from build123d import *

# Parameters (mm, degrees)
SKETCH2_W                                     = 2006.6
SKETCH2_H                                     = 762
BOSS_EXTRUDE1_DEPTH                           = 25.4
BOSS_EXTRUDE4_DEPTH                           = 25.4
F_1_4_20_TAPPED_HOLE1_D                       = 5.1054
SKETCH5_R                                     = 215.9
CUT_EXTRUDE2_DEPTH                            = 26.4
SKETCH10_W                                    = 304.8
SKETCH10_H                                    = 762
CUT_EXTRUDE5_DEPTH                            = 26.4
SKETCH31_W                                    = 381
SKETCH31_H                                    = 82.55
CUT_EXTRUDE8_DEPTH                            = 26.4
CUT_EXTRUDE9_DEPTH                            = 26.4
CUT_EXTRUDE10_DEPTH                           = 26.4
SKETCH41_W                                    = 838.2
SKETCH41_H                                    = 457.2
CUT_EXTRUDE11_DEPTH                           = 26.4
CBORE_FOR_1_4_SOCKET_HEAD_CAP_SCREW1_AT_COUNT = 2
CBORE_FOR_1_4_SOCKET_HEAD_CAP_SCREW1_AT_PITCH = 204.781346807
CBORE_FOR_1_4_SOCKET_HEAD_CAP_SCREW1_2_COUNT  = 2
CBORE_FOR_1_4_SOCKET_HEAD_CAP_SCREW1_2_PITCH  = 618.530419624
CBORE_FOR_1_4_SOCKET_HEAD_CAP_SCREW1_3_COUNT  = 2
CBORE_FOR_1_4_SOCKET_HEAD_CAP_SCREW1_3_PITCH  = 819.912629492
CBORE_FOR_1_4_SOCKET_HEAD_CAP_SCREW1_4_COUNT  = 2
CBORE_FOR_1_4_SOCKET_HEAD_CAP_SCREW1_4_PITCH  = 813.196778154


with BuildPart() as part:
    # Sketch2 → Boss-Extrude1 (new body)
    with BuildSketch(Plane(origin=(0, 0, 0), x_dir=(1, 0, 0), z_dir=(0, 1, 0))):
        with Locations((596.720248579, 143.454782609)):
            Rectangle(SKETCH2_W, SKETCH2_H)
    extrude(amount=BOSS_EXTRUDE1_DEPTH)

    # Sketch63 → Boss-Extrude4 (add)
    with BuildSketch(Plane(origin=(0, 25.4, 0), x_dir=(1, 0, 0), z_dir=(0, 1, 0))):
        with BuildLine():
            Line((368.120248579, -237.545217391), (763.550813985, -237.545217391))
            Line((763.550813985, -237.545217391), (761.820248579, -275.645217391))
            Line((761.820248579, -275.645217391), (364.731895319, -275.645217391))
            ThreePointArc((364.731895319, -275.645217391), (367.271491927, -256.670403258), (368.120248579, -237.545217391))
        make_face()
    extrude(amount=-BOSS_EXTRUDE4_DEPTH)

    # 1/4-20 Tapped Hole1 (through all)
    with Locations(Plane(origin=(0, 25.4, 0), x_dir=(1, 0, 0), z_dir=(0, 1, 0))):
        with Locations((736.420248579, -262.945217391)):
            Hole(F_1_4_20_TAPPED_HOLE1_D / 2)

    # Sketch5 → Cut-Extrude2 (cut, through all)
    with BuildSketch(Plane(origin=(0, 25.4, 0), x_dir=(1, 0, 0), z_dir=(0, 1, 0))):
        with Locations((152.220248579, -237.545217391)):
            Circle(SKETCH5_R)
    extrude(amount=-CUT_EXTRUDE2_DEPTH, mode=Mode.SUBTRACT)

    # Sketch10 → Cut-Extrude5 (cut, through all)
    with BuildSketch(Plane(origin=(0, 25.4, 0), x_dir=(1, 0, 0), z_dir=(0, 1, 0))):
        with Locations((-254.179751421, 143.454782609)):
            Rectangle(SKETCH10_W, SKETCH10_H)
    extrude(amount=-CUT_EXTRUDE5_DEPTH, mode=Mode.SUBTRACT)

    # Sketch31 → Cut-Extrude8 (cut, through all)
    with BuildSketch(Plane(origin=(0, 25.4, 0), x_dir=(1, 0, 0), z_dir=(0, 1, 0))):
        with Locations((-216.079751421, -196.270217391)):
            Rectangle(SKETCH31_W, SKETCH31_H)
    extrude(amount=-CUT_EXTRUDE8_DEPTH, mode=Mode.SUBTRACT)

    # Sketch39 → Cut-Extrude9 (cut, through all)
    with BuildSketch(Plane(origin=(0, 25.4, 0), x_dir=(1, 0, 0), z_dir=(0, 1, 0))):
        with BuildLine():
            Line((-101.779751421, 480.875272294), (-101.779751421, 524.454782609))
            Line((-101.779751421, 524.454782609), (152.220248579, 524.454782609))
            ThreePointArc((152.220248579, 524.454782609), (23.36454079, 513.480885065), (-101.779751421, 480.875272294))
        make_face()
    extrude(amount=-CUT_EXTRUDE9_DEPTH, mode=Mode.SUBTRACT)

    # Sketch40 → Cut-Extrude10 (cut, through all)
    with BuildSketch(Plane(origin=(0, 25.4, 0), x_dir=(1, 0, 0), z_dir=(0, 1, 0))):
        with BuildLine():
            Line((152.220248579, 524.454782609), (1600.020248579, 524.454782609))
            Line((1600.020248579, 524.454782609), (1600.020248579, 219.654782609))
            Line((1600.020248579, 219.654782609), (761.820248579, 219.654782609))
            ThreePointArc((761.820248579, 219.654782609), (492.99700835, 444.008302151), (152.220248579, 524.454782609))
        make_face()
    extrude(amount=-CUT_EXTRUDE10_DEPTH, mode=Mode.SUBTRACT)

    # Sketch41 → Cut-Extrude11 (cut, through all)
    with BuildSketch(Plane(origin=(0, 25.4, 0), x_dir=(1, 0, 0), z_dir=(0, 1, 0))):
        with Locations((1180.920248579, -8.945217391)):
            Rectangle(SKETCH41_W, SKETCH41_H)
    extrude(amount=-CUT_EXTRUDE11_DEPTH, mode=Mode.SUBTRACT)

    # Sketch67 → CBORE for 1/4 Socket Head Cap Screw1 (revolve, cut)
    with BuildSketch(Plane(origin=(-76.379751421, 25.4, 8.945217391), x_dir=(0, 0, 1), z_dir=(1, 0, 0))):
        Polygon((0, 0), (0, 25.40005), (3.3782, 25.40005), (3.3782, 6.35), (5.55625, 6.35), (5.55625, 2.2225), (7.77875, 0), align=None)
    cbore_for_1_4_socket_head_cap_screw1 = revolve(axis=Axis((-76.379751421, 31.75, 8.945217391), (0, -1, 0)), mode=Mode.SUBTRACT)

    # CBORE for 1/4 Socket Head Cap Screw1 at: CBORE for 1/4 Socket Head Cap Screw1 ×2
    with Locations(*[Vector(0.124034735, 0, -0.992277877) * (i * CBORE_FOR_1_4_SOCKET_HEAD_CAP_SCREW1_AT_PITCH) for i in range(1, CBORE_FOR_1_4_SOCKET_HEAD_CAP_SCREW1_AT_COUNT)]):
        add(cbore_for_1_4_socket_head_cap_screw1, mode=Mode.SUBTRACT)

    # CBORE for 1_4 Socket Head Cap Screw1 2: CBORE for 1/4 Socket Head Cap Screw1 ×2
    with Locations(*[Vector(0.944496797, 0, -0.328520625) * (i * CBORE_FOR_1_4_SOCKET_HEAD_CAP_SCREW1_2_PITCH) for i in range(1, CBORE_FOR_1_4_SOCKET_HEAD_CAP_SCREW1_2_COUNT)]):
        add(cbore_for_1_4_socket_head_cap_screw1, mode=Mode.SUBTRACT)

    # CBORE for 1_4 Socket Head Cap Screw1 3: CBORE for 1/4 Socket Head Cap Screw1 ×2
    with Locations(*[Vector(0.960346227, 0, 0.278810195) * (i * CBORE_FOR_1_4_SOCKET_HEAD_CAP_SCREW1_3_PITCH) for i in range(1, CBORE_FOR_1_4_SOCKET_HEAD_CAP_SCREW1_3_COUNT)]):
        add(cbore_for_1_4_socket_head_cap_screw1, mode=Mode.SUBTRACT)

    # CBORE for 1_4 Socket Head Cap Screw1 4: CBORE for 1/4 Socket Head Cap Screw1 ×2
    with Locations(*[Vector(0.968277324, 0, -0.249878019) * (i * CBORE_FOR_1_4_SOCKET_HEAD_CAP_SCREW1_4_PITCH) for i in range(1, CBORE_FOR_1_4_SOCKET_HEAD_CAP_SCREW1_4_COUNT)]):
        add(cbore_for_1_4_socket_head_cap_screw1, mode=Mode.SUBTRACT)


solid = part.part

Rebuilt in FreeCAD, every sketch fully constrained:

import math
import FreeCAD as App
import Part
import Sketcher

V = App.Vector
Q = App.Units.Quantity

doc = App.newDocument("Part")
params = doc.addObject("Spreadsheet::Sheet", "Params")
for row, (alias, value) in enumerate([
    ("sketch1_width", "79 in"),
    ("sketch1_height", "30 in"),
    ("pad1_length", "1 in"),
    ("sketch2_radius", "8.5 in"),
    ("pad2_length", "1 in"),
    ("sketch3_diameter", "0.201 in"),
    ("hole_diameter", "0.201 in"),
    ("sketch4_diameter", "17 in"),
    ("sketch5_width", "12 in"),
    ("sketch5_height", "30 in"),
    ("sketch6_width", "15 in"),
    ("sketch6_height", "3.25 in"),
    ("sketch7_radius", "30 in"),
    ("sketch7_width", "10 in"),
    ("sketch8_radius", "30 in"),
    ("sketch8_width", "57 in"),
    ("sketch8_width2", "33 in"),
    ("sketch9_width", "33 in"),
    ("sketch9_height", "18 in"),
    ("sketch10_height", "0.133 in"),
    ("groove_angle", "360 deg"),
    ("linearpattern_pitch", "204.781347 mm"),
    ("linearpattern2_pitch", "618.53042 mm"),
    ("linearpattern3_pitch", "819.91263 mm"),
    ("linearpattern4_pitch", "813.196778 mm"),
], start=1):
    params.set(f"A{row}", alias)
    params.set(f"B{row}", "=" + value)
    params.setAlias(f"B{row}", alias)

body = doc.addObject("PartDesign::Body", "Body")

sketch1 = body.newObject("Sketcher::SketchObject", "Sketch")
sketch1.AttachmentSupport = (doc.getObject("XZ_Plane"), [""])
sketch1.MapMode = "FlatFace"
sketch1.addGeometry([
    Part.LineSegment(V(-407, -524, 0), V(-407, 238, 0)),
    Part.LineSegment(V(-407, 238, 0), V(1600, 238, 0)),
    Part.LineSegment(V(1600, 238, 0), V(1600, -524, 0)),
    Part.LineSegment(V(1600, -524, 0), V(-407, -524, 0)),
], False)
sketch1.addConstraint([
    Sketcher.Constraint("Coincident", 0, 2, 1, 1),
    Sketcher.Constraint("Coincident", 1, 2, 2, 1),
    Sketcher.Constraint("Coincident", 2, 2, 3, 1),
    Sketcher.Constraint("Coincident", 3, 2, 0, 1),
    Sketcher.Constraint("Vertical", 0),
    Sketcher.Constraint("Horizontal", 1),
    Sketcher.Constraint("Vertical", 2),
    Sketcher.Constraint("Horizontal", 3),
    Sketcher.Constraint("DistanceX", 1, 1, 1, 2, Q("79 in")),
    Sketcher.Constraint("DistanceY", 0, 1, 0, 2, Q("30 in")),
    Sketcher.Constraint("DistanceX", 0, 2, -1, 1, Q("406.579751 mm")),
    Sketcher.Constraint("DistanceY", -1, 1, 0, 2, Q("237.545217 mm")),
])
sketch1.setExpression("Constraints[8]", "Params.sketch1_width")
sketch1.setExpression("Constraints[9]", "Params.sketch1_height")
pad1 = body.newObject("PartDesign::Pad", "Pad")
pad1.Profile = sketch1
pad1.setExpression("Length", "Params.pad1_length")
pad1.Reversed = True

sketch2 = body.newObject("Sketcher::SketchObject", "Sketch001")
sketch2.AttachmentSupport = (doc.getObject("XZ_Plane"), [""])
sketch2.MapMode = "FlatFace"
sketch2.AttachmentOffset = App.Placement(V(0, 0, -1 * 25.4), App.Rotation())
sketch2.addGeometry([
    Part.LineSegment(V(764, 238, 0), V(368, 238, 0)),
    Part.ArcOfCircle(Part.Circle(V(152, 238, 0), V(0, 0, 1), 216), math.radians(0), math.radians(10.16)),
    Part.LineSegment(V(365, 276, 0), V(762, 276, 0)),
    Part.LineSegment(V(762, 276, 0), V(764, 238, 0)),
], False)
sketch2.addConstraint([
    Sketcher.Constraint("Coincident", 0, 2, 1, 1),
    Sketcher.Constraint("Coincident", 1, 2, 2, 1),
    Sketcher.Constraint("Coincident", 2, 2, 3, 1),
    Sketcher.Constraint("Coincident", 3, 2, 0, 1),
    Sketcher.Constraint("Horizontal", 0),
    Sketcher.Constraint("Horizontal", 2),
    Sketcher.Constraint("Horizontal", 1, 3, 0, 2),
    Sketcher.Constraint("Radius", 1, Q("8.5 in")),
    Sketcher.Constraint("DistanceX", 1, 3, 2, 2, Q("24 in")),
    Sketcher.Constraint("DistanceY", 0, 2, 1, 2, Q("1.5 in")),
    Sketcher.Constraint("DistanceX", 0, 2, 0, 1, Q("395.430565 mm")),
    Sketcher.Constraint("DistanceX", -1, 1, 1, 3, Q("152.220249 mm")),
    Sketcher.Constraint("DistanceY", -1, 1, 1, 3, Q("237.545217 mm")),
])
sketch2.setExpression("Constraints[7]", "Params.sketch2_radius")
pad2 = body.newObject("PartDesign::Pad", "Pad001")
pad2.Profile = sketch2
pad2.setExpression("Length", "Params.pad2_length")

sketch3 = body.newObject("Sketcher::SketchObject", "Sketch002")
sketch3.AttachmentSupport = (doc.getObject("XZ_Plane"), [""])
sketch3.MapMode = "FlatFace"
sketch3.AttachmentOffset = App.Placement(V(0, 0, -1 * 25.4), App.Rotation())
sketch3.addGeometry(Part.Circle(V(736.4, 262.9, 0), V(0, 0, 1), 2.6), False)
sketch3.addConstraint([
    Sketcher.Constraint("Diameter", 0, Q("0.201 in")),
    Sketcher.Constraint("DistanceX", -1, 1, 0, 3, Q("736.420249 mm")),
    Sketcher.Constraint("DistanceY", -1, 1, 0, 3, Q("262.945217 mm")),
])
sketch3.setExpression("Constraints[0]", "Params.sketch3_diameter")
doc.recompute()
hole = body.newObject("PartDesign::Hole", "Hole")
hole.Profile = sketch3
hole.ThreadType = "None"
hole.setExpression("Diameter", "Params.hole_diameter")
hole.DepthType = "ThroughAll"
hole.Reversed = True

sketch4 = body.newObject("Sketcher::SketchObject", "Sketch003")
sketch4.AttachmentSupport = (doc.getObject("XZ_Plane"), [""])
sketch4.MapMode = "FlatFace"
sketch4.AttachmentOffset = App.Placement(V(0, 0, -1 * 25.4), App.Rotation())
sketch4.addGeometry(Part.Circle(V(152, 238, 0), V(0, 0, 1), 216), False)
sketch4.addConstraint([
    Sketcher.Constraint("Diameter", 0, Q("17 in")),
    Sketcher.Constraint("DistanceX", -1, 1, 0, 3, Q("152.220249 mm")),
    Sketcher.Constraint("DistanceY", -1, 1, 0, 3, Q("237.545217 mm")),
])
sketch4.setExpression("Constraints[0]", "Params.sketch4_diameter")
pocket1 = body.newObject("PartDesign::Pocket", "Pocket")
pocket1.Profile = sketch4
pocket1.Type = "ThroughAll"
pocket1.Reversed = True

sketch5 = body.newObject("Sketcher::SketchObject", "Sketch004")
sketch5.AttachmentSupport = (doc.getObject("XZ_Plane"), [""])
sketch5.MapMode = "FlatFace"
sketch5.AttachmentOffset = App.Placement(V(0, 0, -1 * 25.4), App.Rotation())
sketch5.addGeometry([
    Part.LineSegment(V(-407, -524, 0), V(-407, 238, 0)),
    Part.LineSegment(V(-407, 238, 0), V(-102, 238, 0)),
    Part.LineSegment(V(-102, 238, 0), V(-102, -524, 0)),
    Part.LineSegment(V(-102, -524, 0), V(-407, -524, 0)),
], False)
sketch5.addConstraint([
    Sketcher.Constraint("Coincident", 0, 2, 1, 1),
    Sketcher.Constraint("Coincident", 1, 2, 2, 1),
    Sketcher.Constraint("Coincident", 2, 2, 3, 1),
    Sketcher.Constraint("Coincident", 3, 2, 0, 1),
    Sketcher.Constraint("Vertical", 0),
    Sketcher.Constraint("Horizontal", 1),
    Sketcher.Constraint("Vertical", 2),
    Sketcher.Constraint("Horizontal", 3),
    Sketcher.Constraint("DistanceX", 1, 1, 1, 2, Q("12 in")),
    Sketcher.Constraint("DistanceY", 0, 1, 0, 2, Q("30 in")),
    Sketcher.Constraint("DistanceX", 0, 2, -1, 1, Q("406.579751 mm")),
    Sketcher.Constraint("DistanceY", -1, 1, 0, 2, Q("237.545217 mm")),
])
sketch5.setExpression("Constraints[8]", "Params.sketch5_width")
sketch5.setExpression("Constraints[9]", "Params.sketch5_height")
pocket2 = body.newObject("PartDesign::Pocket", "Pocket001")
pocket2.Profile = sketch5
pocket2.Type = "ThroughAll"
pocket2.Reversed = True

sketch6 = body.newObject("Sketcher::SketchObject", "Sketch005")
sketch6.AttachmentSupport = (doc.getObject("XZ_Plane"), [""])
sketch6.MapMode = "FlatFace"
sketch6.AttachmentOffset = App.Placement(V(0, 0, -1 * 25.4), App.Rotation())
sketch6.addGeometry([
    Part.LineSegment(V(-407, 155, 0), V(-407, 238, 0)),
    Part.LineSegment(V(-407, 238, 0), V(-26, 238, 0)),
    Part.LineSegment(V(-26, 238, 0), V(-26, 155, 0)),
    Part.LineSegment(V(-26, 155, 0), V(-407, 155, 0)),
], False)
sketch6.addConstraint([
    Sketcher.Constraint("Coincident", 0, 2, 1, 1),
    Sketcher.Constraint("Coincident", 1, 2, 2, 1),
    Sketcher.Constraint("Coincident", 2, 2, 3, 1),
    Sketcher.Constraint("Coincident", 3, 2, 0, 1),
    Sketcher.Constraint("Vertical", 0),
    Sketcher.Constraint("Horizontal", 1),
    Sketcher.Constraint("Vertical", 2),
    Sketcher.Constraint("Horizontal", 3),
    Sketcher.Constraint("DistanceX", 1, 1, 1, 2, Q("15 in")),
    Sketcher.Constraint("DistanceY", 0, 1, 0, 2, Q("3.25 in")),
    Sketcher.Constraint("DistanceX", 0, 2, -1, 1, Q("406.579751 mm")),
    Sketcher.Constraint("DistanceY", -1, 1, 0, 2, Q("237.545217 mm")),
])
sketch6.setExpression("Constraints[8]", "Params.sketch6_width")
sketch6.setExpression("Constraints[9]", "Params.sketch6_height")
pocket3 = body.newObject("PartDesign::Pocket", "Pocket002")
pocket3.Profile = sketch6
pocket3.Type = "ThroughAll"
pocket3.Reversed = True

sketch7 = body.newObject("Sketcher::SketchObject", "Sketch006")
sketch7.AttachmentSupport = (doc.getObject("XZ_Plane"), [""])
sketch7.MapMode = "FlatFace"
sketch7.AttachmentOffset = App.Placement(V(0, 0, -1 * 25.4), App.Rotation())
sketch7.addGeometry([
    Part.LineSegment(V(-102, -524, 0), V(-102, -481, 0)),
    Part.ArcOfCircle(Part.Circle(V(152, 238, 0), V(0, 0, 1), 762), math.radians(-109.47), math.radians(-90)),
    Part.LineSegment(V(152, -524, 0), V(-102, -524, 0)),
], False)
sketch7.addConstraint([
    Sketcher.Constraint("Coincident", 0, 2, 1, 1),
    Sketcher.Constraint("Tangent", 1, 2, 2, 1),
    Sketcher.Constraint("Coincident", 2, 2, 0, 1),
    Sketcher.Constraint("Vertical", 0),
    Sketcher.Constraint("Horizontal", 2),
    Sketcher.Constraint("Radius", 1, Q("30 in")),
    Sketcher.Constraint("DistanceX", 2, 2, 2, 1, Q("10 in")),
    Sketcher.Constraint("DistanceX", -1, 1, 1, 3, Q("152.220249 mm")),
    Sketcher.Constraint("DistanceY", -1, 1, 1, 3, Q("237.545217 mm")),
])
sketch7.setExpression("Constraints[5]", "Params.sketch7_radius")
sketch7.setExpression("Constraints[6]", "Params.sketch7_width")
pocket4 = body.newObject("PartDesign::Pocket", "Pocket003")
pocket4.Profile = sketch7
pocket4.Type = "ThroughAll"
pocket4.Reversed = True

sketch8 = body.newObject("Sketcher::SketchObject", "Sketch007")
sketch8.AttachmentSupport = (doc.getObject("XZ_Plane"), [""])
sketch8.MapMode = "FlatFace"
sketch8.AttachmentOffset = App.Placement(V(0, 0, -1 * 25.4), App.Rotation())
sketch8.addGeometry([
    Part.LineSegment(V(1600, -524, 0), V(152, -524, 0)),
    Part.ArcOfCircle(Part.Circle(V(152, 238, 0), V(0, 0, 1), 762), math.radians(-90), math.radians(-37)),
    Part.LineSegment(V(762, -220, 0), V(1600, -220, 0)),
    Part.LineSegment(V(1600, -220, 0), V(1600, -524, 0)),
], False)
sketch8.addConstraint([
    Sketcher.Constraint("Tangent", 0, 2, 1, 1),
    Sketcher.Constraint("Coincident", 1, 2, 2, 1),
    Sketcher.Constraint("Coincident", 2, 2, 3, 1),
    Sketcher.Constraint("Coincident", 3, 2, 0, 1),
    Sketcher.Constraint("Horizontal", 0),
    Sketcher.Constraint("Horizontal", 2),
    Sketcher.Constraint("Vertical", 3),
    Sketcher.Constraint("Radius", 1, Q("30 in")),
    Sketcher.Constraint("DistanceX", 0, 2, 0, 1, Q("57 in")),
    Sketcher.Constraint("DistanceX", 2, 1, 2, 2, Q("33 in")),
    Sketcher.Constraint("DistanceX", -1, 1, 1, 3, Q("152.220249 mm")),
    Sketcher.Constraint("DistanceY", -1, 1, 1, 3, Q("237.545217 mm")),
])
sketch8.setExpression("Constraints[7]", "Params.sketch8_radius")
sketch8.setExpression("Constraints[8]", "Params.sketch8_width")
sketch8.setExpression("Constraints[9]", "Params.sketch8_width2")
pocket5 = body.newObject("PartDesign::Pocket", "Pocket004")
pocket5.Profile = sketch8
pocket5.Type = "ThroughAll"
pocket5.Reversed = True

sketch9 = body.newObject("Sketcher::SketchObject", "Sketch008")
sketch9.AttachmentSupport = (doc.getObject("XZ_Plane"), [""])
sketch9.MapMode = "FlatFace"
sketch9.AttachmentOffset = App.Placement(V(0, 0, -1 * 25.4), App.Rotation())
sketch9.addGeometry([
    Part.LineSegment(V(762, -220, 0), V(762, 238, 0)),
    Part.LineSegment(V(762, 238, 0), V(1600, 238, 0)),
    Part.LineSegment(V(1600, 238, 0), V(1600, -220, 0)),
    Part.LineSegment(V(1600, -220, 0), V(762, -220, 0)),
], False)
sketch9.addConstraint([
    Sketcher.Constraint("Coincident", 0, 2, 1, 1),
    Sketcher.Constraint("Coincident", 1, 2, 2, 1),
    Sketcher.Constraint("Coincident", 2, 2, 3, 1),
    Sketcher.Constraint("Coincident", 3, 2, 0, 1),
    Sketcher.Constraint("Vertical", 0),
    Sketcher.Constraint("Horizontal", 1),
    Sketcher.Constraint("Vertical", 2),
    Sketcher.Constraint("Horizontal", 3),
    Sketcher.Constraint("DistanceX", 1, 1, 1, 2, Q("33 in")),
    Sketcher.Constraint("DistanceY", 0, 1, 0, 2, Q("18 in")),
    Sketcher.Constraint("DistanceX", -1, 1, 0, 2, Q("761.820249 mm")),
    Sketcher.Constraint("DistanceY", -1, 1, 0, 2, Q("237.545217 mm")),
])
sketch9.setExpression("Constraints[8]", "Params.sketch9_width")
sketch9.setExpression("Constraints[9]", "Params.sketch9_height")
pocket6 = body.newObject("PartDesign::Pocket", "Pocket005")
pocket6.Profile = sketch9
pocket6.Type = "ThroughAll"
pocket6.Reversed = True

sketch10 = body.newObject("Sketcher::SketchObject", "Sketch009")
sketch10.AttachmentSupport = (doc.getObject("YZ_Plane"), [""])
sketch10.MapMode = "FlatFace"
sketch10.AttachmentOffset = App.Placement(V(0, 0, -76.379751), App.Rotation())
sketch10.addGeometry([
    Part.LineSegment(V(0, 8.9, 0), V(25.4, 8.9, 0)),
    Part.LineSegment(V(25.4, 8.9, 0), V(25.4, 16.7, 0)),
    Part.LineSegment(V(25.4, 16.7, 0), V(23.2, 14.5, 0)),
    Part.LineSegment(V(23.2, 14.5, 0), V(19.1, 14.5, 0)),
    Part.LineSegment(V(19.1, 14.5, 0), V(19.1, 12.3, 0)),
    Part.LineSegment(V(19.1, 12.3, 0), V(0, 12.3, 0)),
    Part.LineSegment(V(0, 12.3, 0), V(0, 8.9, 0)),
], False)
sketch10.addGeometry(Part.LineSegment(V(25.4, 8.9, 0), V(0, 8.9, 0)), True)
sketch10.addConstraint([
    Sketcher.Constraint("Coincident", 0, 2, 1, 1),
    Sketcher.Constraint("Coincident", 1, 2, 2, 1),
    Sketcher.Constraint("Coincident", 2, 2, 3, 1),
    Sketcher.Constraint("Coincident", 3, 2, 4, 1),
    Sketcher.Constraint("Coincident", 4, 2, 5, 1),
    Sketcher.Constraint("Coincident", 5, 2, 6, 1),
    Sketcher.Constraint("Coincident", 6, 2, 0, 1),
    Sketcher.Constraint("Horizontal", 0),
    Sketcher.Constraint("Vertical", 1),
    Sketcher.Constraint("Horizontal", 3),
    Sketcher.Constraint("Vertical", 4),
    Sketcher.Constraint("Horizontal", 5),
    Sketcher.Constraint("Vertical", 6),
    Sketcher.Constraint("Horizontal", 7),
    Sketcher.Constraint("Coincident", 7, 1, 0, 2),
    Sketcher.Constraint("Vertical", 5, 2, 7, 2),
    Sketcher.Constraint("DistanceX", -1, 1, 0, 2, Q("1 in")),
    Sketcher.Constraint("Angle", 2, Q("-135 deg")),
    Sketcher.Constraint("DistanceY", 6, 2, 6, 1, Q("0.133 in")),
    Sketcher.Constraint("DistanceX", -1, 1, 3, 2, Q("0.75 in")),
    Sketcher.Constraint("DistanceX", 3, 2, 3, 1, Q("0.1625 in")),
    Sketcher.Constraint("DistanceY", 0, 2, 2, 2, Q("0.21875 in")),
    Sketcher.Constraint("DistanceX", 0, 1, 0, 2, Q("25.40005 mm")),
    Sketcher.Constraint("DistanceY", -1, 1, 0, 2, Q("8.945217 mm")),
])
sketch10.setExpression("Constraints[18]", "Params.sketch10_height")
groove = body.newObject("PartDesign::Groove", "Groove")
groove.Profile = sketch10
groove.ReferenceAxis = (sketch10, ["Axis0"])
groove.setExpression("Angle", "Params.groove_angle")
doc.recompute()

datumline = body.newObject("PartDesign::Line", "DatumLine")
datumline.Placement = App.Placement(V(0, 0, 0), App.Rotation(V(0, 0, 1), V(0.124034735, 0, -0.992277877)))
linearpattern = body.newObject("PartDesign::LinearPattern", "LinearPattern")
linearpattern.Originals = [groove]
linearpattern.Direction = (datumline, [""])
linearpattern.Mode = "offset"
linearpattern.setExpression("Offset", "Params.linearpattern_pitch")
linearpattern.Occurrences = 2
body.Tip = linearpattern
doc.recompute()

datumline2 = body.newObject("PartDesign::Line", "DatumLine001")
datumline2.Placement = App.Placement(V(0, 0, 0), App.Rotation(V(0, 0, 1), V(0.944496797, 0, -0.328520625)))
linearpattern2 = body.newObject("PartDesign::LinearPattern", "LinearPattern001")
linearpattern2.Originals = [groove]
linearpattern2.Direction = (datumline2, [""])
linearpattern2.Mode = "offset"
linearpattern2.setExpression("Offset", "Params.linearpattern2_pitch")
linearpattern2.Occurrences = 2
body.Tip = linearpattern2
doc.recompute()

datumline3 = body.newObject("PartDesign::Line", "DatumLine002")
datumline3.Placement = App.Placement(V(0, 0, 0), App.Rotation(V(0, 0, 1), V(0.960346227, 0, 0.278810195)))
linearpattern3 = body.newObject("PartDesign::LinearPattern", "LinearPattern002")
linearpattern3.Originals = [groove]
linearpattern3.Direction = (datumline3, [""])
linearpattern3.Mode = "offset"
linearpattern3.setExpression("Offset", "Params.linearpattern3_pitch")
linearpattern3.Occurrences = 2
body.Tip = linearpattern3
doc.recompute()

datumline4 = body.newObject("PartDesign::Line", "DatumLine003")
datumline4.Placement = App.Placement(V(0, 0, 0), App.Rotation(V(0, 0, 1), V(0.968277324, 0, -0.249878019)))
linearpattern4 = body.newObject("PartDesign::LinearPattern", "LinearPattern003")
linearpattern4.Originals = [groove]
linearpattern4.Direction = (datumline4, [""])
linearpattern4.Mode = "offset"
linearpattern4.setExpression("Offset", "Params.linearpattern4_pitch")
linearpattern4.Occurrences = 2
body.Tip = linearpattern4

doc.recompute()
